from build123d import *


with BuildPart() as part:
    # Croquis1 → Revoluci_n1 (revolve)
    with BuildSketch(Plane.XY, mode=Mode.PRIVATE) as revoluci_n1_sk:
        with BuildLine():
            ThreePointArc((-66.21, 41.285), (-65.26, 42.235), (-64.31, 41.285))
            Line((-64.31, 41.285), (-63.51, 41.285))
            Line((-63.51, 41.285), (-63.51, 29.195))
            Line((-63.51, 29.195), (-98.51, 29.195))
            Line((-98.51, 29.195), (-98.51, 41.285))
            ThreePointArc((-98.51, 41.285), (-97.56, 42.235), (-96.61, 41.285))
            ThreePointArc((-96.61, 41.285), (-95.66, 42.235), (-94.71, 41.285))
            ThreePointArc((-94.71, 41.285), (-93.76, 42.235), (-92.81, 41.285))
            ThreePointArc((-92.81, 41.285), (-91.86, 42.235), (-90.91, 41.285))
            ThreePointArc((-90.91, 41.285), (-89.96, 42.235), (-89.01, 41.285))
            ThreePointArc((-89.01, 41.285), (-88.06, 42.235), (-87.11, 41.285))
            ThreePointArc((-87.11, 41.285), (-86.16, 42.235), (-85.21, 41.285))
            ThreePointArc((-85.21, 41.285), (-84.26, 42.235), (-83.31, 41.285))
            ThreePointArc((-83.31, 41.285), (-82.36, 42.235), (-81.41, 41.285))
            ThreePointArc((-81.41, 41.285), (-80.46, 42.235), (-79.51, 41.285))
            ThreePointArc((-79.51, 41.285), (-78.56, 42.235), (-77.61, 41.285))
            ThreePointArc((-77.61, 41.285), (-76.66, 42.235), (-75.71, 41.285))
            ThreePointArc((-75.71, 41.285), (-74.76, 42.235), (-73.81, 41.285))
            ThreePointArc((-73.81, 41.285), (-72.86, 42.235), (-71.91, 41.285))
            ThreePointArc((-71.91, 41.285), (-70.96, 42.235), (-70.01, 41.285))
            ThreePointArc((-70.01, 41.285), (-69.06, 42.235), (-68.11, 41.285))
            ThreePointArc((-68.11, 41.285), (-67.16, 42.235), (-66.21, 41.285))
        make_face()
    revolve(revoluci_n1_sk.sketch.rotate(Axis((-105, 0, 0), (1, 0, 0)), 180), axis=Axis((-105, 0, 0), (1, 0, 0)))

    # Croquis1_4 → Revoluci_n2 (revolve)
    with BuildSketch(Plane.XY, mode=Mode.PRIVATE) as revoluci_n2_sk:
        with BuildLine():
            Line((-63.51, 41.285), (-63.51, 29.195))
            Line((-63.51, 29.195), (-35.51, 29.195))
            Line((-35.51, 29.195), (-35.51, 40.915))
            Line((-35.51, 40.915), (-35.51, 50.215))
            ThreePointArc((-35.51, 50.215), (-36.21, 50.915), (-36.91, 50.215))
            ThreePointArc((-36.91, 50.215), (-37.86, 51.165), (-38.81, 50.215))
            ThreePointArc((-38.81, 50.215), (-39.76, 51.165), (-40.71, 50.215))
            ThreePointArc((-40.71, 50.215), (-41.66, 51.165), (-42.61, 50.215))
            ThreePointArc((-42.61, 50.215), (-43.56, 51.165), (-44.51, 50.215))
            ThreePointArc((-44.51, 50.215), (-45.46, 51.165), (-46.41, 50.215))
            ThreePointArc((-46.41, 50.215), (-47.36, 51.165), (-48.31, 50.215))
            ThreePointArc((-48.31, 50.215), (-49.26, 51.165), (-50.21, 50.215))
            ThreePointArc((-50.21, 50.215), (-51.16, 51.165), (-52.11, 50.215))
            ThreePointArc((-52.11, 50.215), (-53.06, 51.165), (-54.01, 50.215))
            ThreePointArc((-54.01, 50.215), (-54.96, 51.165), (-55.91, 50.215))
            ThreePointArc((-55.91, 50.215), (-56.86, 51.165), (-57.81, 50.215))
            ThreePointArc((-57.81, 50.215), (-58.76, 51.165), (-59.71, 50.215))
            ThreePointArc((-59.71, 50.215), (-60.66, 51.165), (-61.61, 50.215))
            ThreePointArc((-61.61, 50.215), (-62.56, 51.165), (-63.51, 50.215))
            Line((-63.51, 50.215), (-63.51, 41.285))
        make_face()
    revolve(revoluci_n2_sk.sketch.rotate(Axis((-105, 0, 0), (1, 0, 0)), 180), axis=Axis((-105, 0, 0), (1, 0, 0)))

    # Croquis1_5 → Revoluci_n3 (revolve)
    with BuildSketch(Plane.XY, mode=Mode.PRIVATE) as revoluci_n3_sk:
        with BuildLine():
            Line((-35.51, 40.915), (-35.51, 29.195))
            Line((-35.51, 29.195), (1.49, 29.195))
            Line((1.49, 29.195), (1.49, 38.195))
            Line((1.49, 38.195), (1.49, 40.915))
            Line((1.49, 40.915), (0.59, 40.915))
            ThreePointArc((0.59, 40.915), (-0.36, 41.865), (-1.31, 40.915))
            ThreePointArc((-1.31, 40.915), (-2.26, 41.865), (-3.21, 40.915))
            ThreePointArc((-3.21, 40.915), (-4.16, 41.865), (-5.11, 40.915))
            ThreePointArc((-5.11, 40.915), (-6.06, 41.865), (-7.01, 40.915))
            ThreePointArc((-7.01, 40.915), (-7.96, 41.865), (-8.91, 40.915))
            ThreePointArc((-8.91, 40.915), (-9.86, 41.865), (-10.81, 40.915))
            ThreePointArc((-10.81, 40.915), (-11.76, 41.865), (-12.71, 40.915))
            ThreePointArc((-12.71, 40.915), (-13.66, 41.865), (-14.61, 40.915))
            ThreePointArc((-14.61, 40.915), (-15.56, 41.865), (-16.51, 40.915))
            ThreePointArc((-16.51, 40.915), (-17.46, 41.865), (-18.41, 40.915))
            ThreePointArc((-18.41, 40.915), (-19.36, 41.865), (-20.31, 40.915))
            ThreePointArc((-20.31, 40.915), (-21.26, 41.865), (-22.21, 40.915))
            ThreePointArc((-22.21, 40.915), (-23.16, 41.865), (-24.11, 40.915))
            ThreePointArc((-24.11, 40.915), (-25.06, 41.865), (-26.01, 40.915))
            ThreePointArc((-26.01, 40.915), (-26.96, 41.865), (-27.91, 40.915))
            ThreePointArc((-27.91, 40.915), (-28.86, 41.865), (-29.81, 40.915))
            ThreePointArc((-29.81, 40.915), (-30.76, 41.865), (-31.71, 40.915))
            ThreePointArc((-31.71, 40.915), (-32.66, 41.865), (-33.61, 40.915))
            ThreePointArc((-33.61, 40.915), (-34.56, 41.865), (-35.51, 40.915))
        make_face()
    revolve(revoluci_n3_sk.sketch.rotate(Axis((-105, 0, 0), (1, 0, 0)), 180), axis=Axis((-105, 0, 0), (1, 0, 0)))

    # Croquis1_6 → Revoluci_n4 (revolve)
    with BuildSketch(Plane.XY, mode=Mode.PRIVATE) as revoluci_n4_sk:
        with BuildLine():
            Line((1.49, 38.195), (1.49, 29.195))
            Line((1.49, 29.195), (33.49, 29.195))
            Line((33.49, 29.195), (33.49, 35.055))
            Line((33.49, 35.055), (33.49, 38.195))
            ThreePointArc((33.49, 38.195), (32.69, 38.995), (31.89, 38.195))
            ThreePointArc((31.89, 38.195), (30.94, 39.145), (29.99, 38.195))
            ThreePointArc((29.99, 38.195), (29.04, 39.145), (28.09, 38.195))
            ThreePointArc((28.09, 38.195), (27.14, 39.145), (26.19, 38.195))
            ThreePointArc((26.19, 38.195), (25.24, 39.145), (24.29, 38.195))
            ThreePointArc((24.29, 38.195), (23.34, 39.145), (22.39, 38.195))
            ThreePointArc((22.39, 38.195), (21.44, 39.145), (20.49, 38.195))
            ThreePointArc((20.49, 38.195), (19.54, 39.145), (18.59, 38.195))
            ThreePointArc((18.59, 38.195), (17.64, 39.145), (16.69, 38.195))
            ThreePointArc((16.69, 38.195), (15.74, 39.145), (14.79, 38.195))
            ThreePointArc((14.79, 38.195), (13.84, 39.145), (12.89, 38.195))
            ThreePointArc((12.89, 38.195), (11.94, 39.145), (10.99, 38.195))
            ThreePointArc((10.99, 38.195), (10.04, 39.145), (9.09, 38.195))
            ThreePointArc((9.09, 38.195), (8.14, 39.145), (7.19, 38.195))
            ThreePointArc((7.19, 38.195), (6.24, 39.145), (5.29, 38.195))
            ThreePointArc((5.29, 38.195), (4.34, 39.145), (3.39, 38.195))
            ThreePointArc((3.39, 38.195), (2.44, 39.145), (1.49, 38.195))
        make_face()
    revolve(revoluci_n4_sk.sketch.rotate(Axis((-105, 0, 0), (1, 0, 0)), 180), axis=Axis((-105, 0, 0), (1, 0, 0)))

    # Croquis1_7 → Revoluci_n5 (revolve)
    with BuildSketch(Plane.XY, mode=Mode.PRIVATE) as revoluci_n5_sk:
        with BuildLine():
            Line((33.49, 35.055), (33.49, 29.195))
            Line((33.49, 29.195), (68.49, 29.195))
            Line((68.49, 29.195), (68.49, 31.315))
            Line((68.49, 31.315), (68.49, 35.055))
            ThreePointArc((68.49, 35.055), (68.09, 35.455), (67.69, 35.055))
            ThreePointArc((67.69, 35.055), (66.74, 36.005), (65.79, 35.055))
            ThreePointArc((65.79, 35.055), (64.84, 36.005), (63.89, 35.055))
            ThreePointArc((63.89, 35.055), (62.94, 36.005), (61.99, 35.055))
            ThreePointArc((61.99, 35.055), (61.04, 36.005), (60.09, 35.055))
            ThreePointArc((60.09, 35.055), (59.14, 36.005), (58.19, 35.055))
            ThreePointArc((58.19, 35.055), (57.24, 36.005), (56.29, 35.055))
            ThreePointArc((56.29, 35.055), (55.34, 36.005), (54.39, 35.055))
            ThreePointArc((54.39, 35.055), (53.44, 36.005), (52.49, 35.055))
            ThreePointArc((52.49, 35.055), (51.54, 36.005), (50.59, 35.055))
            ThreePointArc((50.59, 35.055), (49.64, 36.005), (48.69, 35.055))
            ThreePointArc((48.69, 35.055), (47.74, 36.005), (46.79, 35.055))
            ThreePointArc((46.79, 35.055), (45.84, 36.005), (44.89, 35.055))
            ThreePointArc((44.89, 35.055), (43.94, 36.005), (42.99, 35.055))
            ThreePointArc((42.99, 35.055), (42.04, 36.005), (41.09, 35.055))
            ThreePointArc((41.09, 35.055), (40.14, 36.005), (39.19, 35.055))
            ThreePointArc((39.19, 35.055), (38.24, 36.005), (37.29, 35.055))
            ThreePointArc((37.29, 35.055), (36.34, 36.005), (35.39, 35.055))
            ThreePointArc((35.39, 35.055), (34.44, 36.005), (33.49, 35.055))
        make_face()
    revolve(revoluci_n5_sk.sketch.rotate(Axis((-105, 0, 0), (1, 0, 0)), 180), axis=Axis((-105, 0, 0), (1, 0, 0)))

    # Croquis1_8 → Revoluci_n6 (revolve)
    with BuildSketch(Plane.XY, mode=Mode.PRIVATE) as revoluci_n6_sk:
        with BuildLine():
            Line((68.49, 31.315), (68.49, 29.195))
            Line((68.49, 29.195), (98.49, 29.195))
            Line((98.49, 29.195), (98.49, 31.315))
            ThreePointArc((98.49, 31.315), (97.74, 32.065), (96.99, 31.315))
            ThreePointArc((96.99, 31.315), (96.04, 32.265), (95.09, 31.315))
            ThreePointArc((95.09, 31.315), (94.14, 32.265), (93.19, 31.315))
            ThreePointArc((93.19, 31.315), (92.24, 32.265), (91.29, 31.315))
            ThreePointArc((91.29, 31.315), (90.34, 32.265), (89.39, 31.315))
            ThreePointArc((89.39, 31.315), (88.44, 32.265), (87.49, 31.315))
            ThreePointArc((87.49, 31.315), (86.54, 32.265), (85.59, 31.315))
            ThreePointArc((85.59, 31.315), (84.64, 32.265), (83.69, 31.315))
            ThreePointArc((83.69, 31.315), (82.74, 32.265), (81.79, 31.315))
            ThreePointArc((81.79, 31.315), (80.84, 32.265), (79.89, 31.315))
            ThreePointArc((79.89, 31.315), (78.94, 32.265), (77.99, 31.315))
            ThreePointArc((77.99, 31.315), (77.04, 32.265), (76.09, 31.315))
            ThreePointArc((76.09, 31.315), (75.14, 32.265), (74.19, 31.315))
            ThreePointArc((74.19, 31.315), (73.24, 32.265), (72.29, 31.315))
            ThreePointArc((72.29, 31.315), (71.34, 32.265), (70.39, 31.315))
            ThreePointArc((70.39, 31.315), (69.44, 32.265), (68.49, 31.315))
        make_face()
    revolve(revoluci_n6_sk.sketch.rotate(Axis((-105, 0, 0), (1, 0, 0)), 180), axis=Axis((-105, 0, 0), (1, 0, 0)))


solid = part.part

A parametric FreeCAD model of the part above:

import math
import FreeCAD as App
import Part
import Sketcher

doc = App.newDocument("Part")
body = doc.addObject("PartDesign::Body", "Body")

# Sketch on XY plane
sketch1 = body.newObject("Sketcher::SketchObject", "Sketch")
sketch1.AttachmentSupport = (doc.getObject("XY_Plane"), [""])
sketch1.MapMode = "FlatFace"
sketch1.addGeometry([
    Part.ArcOfCircle(Part.Circle(App.Vector(-65.26, 41.285, 0), App.Vector(0, 0, 1), 0.95), math.radians(0), math.radians(180)),  # 0
    Part.ArcOfCircle(Part.Circle(App.Vector(-67.16, 41.285, 0), App.Vector(0, 0, 1), 0.95), math.radians(0), math.radians(180)),  # 1
    Part.ArcOfCircle(Part.Circle(App.Vector(-69.06, 41.285, 0), App.Vector(0, 0, 1), 0.95), math.radians(0), math.radians(180)),  # 2
    Part.ArcOfCircle(Part.Circle(App.Vector(-70.96, 41.285, 0), App.Vector(0, 0, 1), 0.95), math.radians(0), math.radians(180)),  # 3
    Part.ArcOfCircle(Part.Circle(App.Vector(-72.86, 41.285, 0), App.Vector(0, 0, 1), 0.95), math.radians(0), math.radians(180)),  # 4
    Part.ArcOfCircle(Part.Circle(App.Vector(-74.76, 41.285, 0), App.Vector(0, 0, 1), 0.95), math.radians(0), math.radians(180)),  # 5
    Part.ArcOfCircle(Part.Circle(App.Vector(-76.66, 41.285, 0), App.Vector(0, 0, 1), 0.95), math.radians(0), math.radians(180)),  # 6
    Part.ArcOfCircle(Part.Circle(App.Vector(-78.56, 41.285, 0), App.Vector(0, 0, 1), 0.95), math.radians(0), math.radians(180)),  # 7
    Part.ArcOfCircle(Part.Circle(App.Vector(-80.46, 41.285, 0), App.Vector(0, 0, 1), 0.95), math.radians(0), math.radians(180)),  # 8
    Part.ArcOfCircle(Part.Circle(App.Vector(-82.36, 41.285, 0), App.Vector(0, 0, 1), 0.95), math.radians(0), math.radians(180)),  # 9
    Part.ArcOfCircle(Part.Circle(App.Vector(-84.26, 41.285, 0), App.Vector(0, 0, 1), 0.95), math.radians(0), math.radians(180)),  # 10
    Part.ArcOfCircle(Part.Circle(App.Vector(-86.16, 41.285, 0), App.Vector(0, 0, 1), 0.95), math.radians(0), math.radians(180)),  # 11
    Part.ArcOfCircle(Part.Circle(App.Vector(-88.06, 41.285, 0), App.Vector(0, 0, 1), 0.95), math.radians(0), math.radians(180)),  # 12
    Part.ArcOfCircle(Part.Circle(App.Vector(-89.96, 41.285, 0), App.Vector(0, 0, 1), 0.95), math.radians(0), math.radians(180)),  # 13
    Part.ArcOfCircle(Part.Circle(App.Vector(-91.86, 41.285, 0), App.Vector(0, 0, 1), 0.95), math.radians(0), math.radians(180)),  # 14
    Part.ArcOfCircle(Part.Circle(App.Vector(-93.76, 41.285, 0), App.Vector(0, 0, 1), 0.95), math.radians(0), math.radians(180)),  # 15
    Part.ArcOfCircle(Part.Circle(App.Vector(-95.66, 41.285, 0), App.Vector(0, 0, 1), 0.95), math.radians(0), math.radians(180)),  # 16
    Part.ArcOfCircle(Part.Circle(App.Vector(-97.56, 41.285, 0), App.Vector(0, 0, 1), 0.95), math.radians(0), math.radians(180)),  # 17
    Part.LineSegment(App.Vector(-98.51, 41.285, 0), App.Vector(-98.51, 29.195, 0)),  # 18
    Part.LineSegment(App.Vector(-98.51, 29.195, 0), App.Vector(-63.51, 29.195, 0)),  # 19
    Part.LineSegment(App.Vector(-63.51, 29.195, 0), App.Vector(-63.51, 41.285, 0)),  # 20
    Part.LineSegment(App.Vector(-63.51, 41.285, 0), App.Vector(-64.31, 41.285, 0)),  # 21
], False)
sketch1.addConstraint([
    Sketcher.Constraint("Tangent", 0, 2, 1, 1),
    Sketcher.Constraint("Tangent", 1, 2, 2, 1),
    Sketcher.Constraint("Tangent", 2, 2, 3, 1),
    Sketcher.Constraint("Tangent", 3, 2, 4, 1),
    Sketcher.Constraint("Tangent", 4, 2, 5, 1),
    Sketcher.Constraint("Tangent", 5, 2, 6, 1),
    Sketcher.Constraint("Tangent", 6, 2, 7, 1),
    Sketcher.Constraint("Tangent", 7, 2, 8, 1),
    Sketcher.Constraint("Tangent", 8, 2, 9, 1),
    Sketcher.Constraint("Tangent", 9, 2, 10, 1),
    Sketcher.Constraint("Tangent", 10, 2, 11, 1),
    Sketcher.Constraint("Tangent", 11, 2, 12, 1),
    Sketcher.Constraint("Tangent", 12, 2, 13, 1),
    Sketcher.Constraint("Tangent", 13, 2, 14, 1),
    Sketcher.Constraint("Tangent", 14, 2, 15, 1),
    Sketcher.Constraint("Tangent", 15, 2, 16, 1),
    Sketcher.Constraint("Tangent", 16, 2, 17, 1),
    Sketcher.Constraint("Tangent", 17, 2, 18, 1),
    Sketcher.Constraint("Coincident", 18, 2, 19, 1),
    Sketcher.Constraint("Coincident", 19, 2, 20, 1),
    Sketcher.Constraint("Coincident", 20, 2, 21, 1),
    Sketcher.Constraint("Coincident", 21, 2, 0, 1),
    Sketcher.Constraint("Vertical", 18),
    Sketcher.Constraint("Horizontal", 19),
    Sketcher.Constraint("Vertical", 20),
    Sketcher.Constraint("Horizontal", 21),
    Sketcher.Constraint("Equal", 0, 1),
    Sketcher.Constraint("Equal", 1, 2),
    Sketcher.Constraint("Equal", 2, 3),
    Sketcher.Constraint("Equal", 3, 4),
    Sketcher.Constraint("Equal", 4, 5),
    Sketcher.Constraint("Equal", 5, 6),
    Sketcher.Constraint("Equal", 6, 7),
    Sketcher.Constraint("Equal", 7, 8),
    Sketcher.Constraint("Equal", 8, 9),
    Sketcher.Constraint("Equal", 9, 10),
    Sketcher.Constraint("Equal", 10, 11),
    Sketcher.Constraint("Equal", 11, 12),
    Sketcher.Constraint("Equal", 12, 13),
    Sketcher.Constraint("Equal", 13, 14),
    Sketcher.Constraint("Equal", 14, 15),
    Sketcher.Constraint("Equal", 15, 16),
    Sketcher.Constraint("Equal", 16, 17),
    Sketcher.Constraint("Horizontal", 0, 3, 1, 3),
    Sketcher.Constraint("Horizontal", 1, 3, 2, 3),
    Sketcher.Constraint("Horizontal", 2, 3, 3, 3),
    Sketcher.Constraint("Horizontal", 3, 3, 4, 3),
    Sketcher.Constraint("Horizontal", 4, 3, 5, 3),
    Sketcher.Constraint("Horizontal", 5, 3, 6, 3),
    Sketcher.Constraint("Horizontal", 6, 3, 7, 3),
    Sketcher.Constraint("Horizontal", 7, 3, 8, 3),
    Sketcher.Constraint("Horizontal", 8, 3, 9, 3),
    Sketcher.Constraint("Horizontal", 9, 3, 10, 3),
    Sketcher.Constraint("Horizontal", 10, 3, 11, 3),
    Sketcher.Constraint("Horizontal", 11, 3, 12, 3),
    Sketcher.Constraint("Horizontal", 12, 3, 13, 3),
    Sketcher.Constraint("Horizontal", 13, 3, 14, 3),
    Sketcher.Constraint("Horizontal", 14, 3, 15, 3),
    Sketcher.Constraint("Horizontal", 15, 3, 16, 3),
    Sketcher.Constraint("Horizontal", 16, 3, 17, 3),
    Sketcher.Constraint("Horizontal", 17, 2, 20, 2),
    Sketcher.Constraint("DistanceX", 19, 1, 19, 2, 35.0),
    Sketcher.Constraint("Radius", 0, 0.95),
    Sketcher.Constraint("DistanceY", 18, 2, 18, 1, 12.09),
    Sketcher.Constraint("DistanceX", 0, 3, -1, 1, 65.26),
    Sketcher.Constraint("DistanceY", -1, 1, 0, 3, 41.285),
])
revolution = body.newObject("PartDesign::Revolution", "Revolution")
revolution.Profile = sketch1
revolution.ReferenceAxis = (sketch1, ["H_Axis"])
revolution.Angle = 360

# Sketch on XY plane
sketch2 = body.newObject("Sketcher::SketchObject", "Sketch001")
sketch2.AttachmentSupport = (doc.getObject("XY_Plane"), [""])
sketch2.MapMode = "FlatFace"
sketch2.addGeometry([
    Part.LineSegment(App.Vector(-63.51, 29.195, 0), App.Vector(-35.51, 29.195, 0)),  # 0
    Part.LineSegment(App.Vector(-35.51, 29.195, 0), App.Vector(-35.51, 50.215, 0)),  # 1
    Part.ArcOfCircle(Part.Circle(App.Vector(-36.21, 50.215, 0), App.Vector(0, 0, 1), 0.7), math.radians(0), math.radians(180)),  # 2
    Part.ArcOfCircle(Part.Circle(App.Vector(-37.86, 50.215, 0), App.Vector(0, 0, 1), 0.95), math.radians(0), math.radians(180)),  # 3
    Part.ArcOfCircle(Part.Circle(App.Vector(-39.76, 50.215, 0), App.Vector(0, 0, 1), 0.95), math.radians(0), math.radians(180)),  # 4
    Part.ArcOfCircle(Part.Circle(App.Vector(-41.66, 50.215, 0), App.Vector(0, 0, 1), 0.95), math.radians(0), math.radians(180)),  # 5
    Part.ArcOfCircle(Part.Circle(App.Vector(-43.56, 50.215, 0), App.Vector(0, 0, 1), 0.95), math.radians(0), math.radians(180)),  # 6
    Part.ArcOfCircle(Part.Circle(App.Vector(-45.46, 50.215, 0), App.Vector(0, 0, 1), 0.95), math.radians(0), math.radians(180)),  # 7
    Part.ArcOfCircle(Part.Circle(App.Vector(-47.36, 50.215, 0), App.Vector(0, 0, 1), 0.95), math.radians(0), math.radians(180)),  # 8
    Part.ArcOfCircle(Part.Circle(App.Vector(-49.26, 50.215, 0), App.Vector(0, 0, 1), 0.95), math.radians(0), math.radians(180)),  # 9
    Part.ArcOfCircle(Part.Circle(App.Vector(-51.16, 50.215, 0), App.Vector(0, 0, 1), 0.95), math.radians(0), math.radians(180)),  # 10
    Part.ArcOfCircle(Part.Circle(App.Vector(-53.06, 50.215, 0), App.Vector(0, 0, 1), 0.95), math.radians(0), math.radians(180)),  # 11
    Part.ArcOfCircle(Part.Circle(App.Vector(-54.96, 50.215, 0), App.Vector(0, 0, 1), 0.95), math.radians(0), math.radians(180)),  # 12
    Part.ArcOfCircle(Part.Circle(App.Vector(-56.86, 50.215, 0), App.Vector(0, 0, 1), 0.95), math.radians(0), math.radians(180)),  # 13
    Part.ArcOfCircle(Part.Circle(App.Vector(-58.76, 50.215, 0), App.Vector(0, 0, 1), 0.95), math.radians(0), math.radians(180)),  # 14
    Part.ArcOfCircle(Part.Circle(App.Vector(-60.66, 50.215, 0), App.Vector(0, 0, 1), 0.95), math.radians(0), math.radians(180)),  # 15
    Part.ArcOfCircle(Part.Circle(App.Vector(-62.56, 50.215, 0), App.Vector(0, 0, 1), 0.95), math.radians(0), math.radians(180)),  # 16
    Part.LineSegment(App.Vector(-63.51, 50.215, 0), App.Vector(-63.51, 29.195, 0)),  # 17
], False)
sketch2.addConstraint([
    Sketcher.Constraint("Coincident", 0, 2, 1, 1),
    Sketcher.Constraint("Tangent", 1, 2, 2, 1),
    Sketcher.Constraint("Tangent", 2, 2, 3, 1),
    Sketcher.Constraint("Tangent", 3, 2, 4, 1),
    Sketcher.Constraint("Tangent", 4, 2, 5, 1),
    Sketcher.Constraint("Tangent", 5, 2, 6, 1),
    Sketcher.Constraint("Tangent", 6, 2, 7, 1),
    Sketcher.Constraint("Tangent", 7, 2, 8, 1),
    Sketcher.Constraint("Tangent", 8, 2, 9, 1),
    Sketcher.Constraint("Tangent", 9, 2, 10, 1),
    Sketcher.Constraint("Tangent", 10, 2, 11, 1),
    Sketcher.Constraint("Tangent", 11, 2, 12, 1),
    Sketcher.Constraint("Tangent", 12, 2, 13, 1),
    Sketcher.Constraint("Tangent", 13, 2, 14, 1),
    Sketcher.Constraint("Tangent", 14, 2, 15, 1),
    Sketcher.Constraint("Tangent", 15, 2, 16, 1),
    Sketcher.Constraint("Tangent", 16, 2, 17, 1),
    Sketcher.Constraint("Coincident", 17, 2, 0, 1),
    Sketcher.Constraint("Horizontal", 0),
    Sketcher.Constraint("Vertical", 1),
    Sketcher.Constraint("Vertical", 17),
    Sketcher.Constraint("Equal", 3, 4),
    Sketcher.Constraint("Equal", 4, 5),
    Sketcher.Constraint("Equal", 5, 6),
    Sketcher.Constraint("Equal", 6, 7),
    Sketcher.Constraint("Equal", 7, 8),
    Sketcher.Constraint("Equal", 8, 9),
    Sketcher.Constraint("Equal", 9, 10),
    Sketcher.Constraint("Equal", 10, 11),
    Sketcher.Constraint("Equal", 11, 12),
    Sketcher.Constraint("Equal", 12, 13),
    Sketcher.Constraint("Equal", 13, 14),
    Sketcher.Constraint("Equal", 14, 15),
    Sketcher.Constraint("Equal", 15, 16),
    Sketcher.Constraint("Horizontal", 2, 3, 3, 3),
    Sketcher.Constraint("Horizontal", 3, 3, 4, 3),
    Sketcher.Constraint("Horizontal", 4, 3, 5, 3),
    Sketcher.Constraint("Horizontal", 5, 3, 6, 3),
    Sketcher.Constraint("Horizontal", 6, 3, 7, 3),
    Sketcher.Constraint("Horizontal", 7, 3, 8, 3),
    Sketcher.Constraint("Horizontal", 8, 3, 9, 3),
    Sketcher.Constraint("Horizontal", 9, 3, 10, 3),
    Sketcher.Constraint("Horizontal", 10, 3, 11, 3),
    Sketcher.Constraint("Horizontal", 11, 3, 12, 3),
    Sketcher.Constraint("Horizontal", 12, 3, 13, 3),
    Sketcher.Constraint("Horizontal", 13, 3, 14, 3),
    Sketcher.Constraint("Horizontal", 14, 3, 15, 3),
    Sketcher.Constraint("Horizontal", 15, 3, 16, 3),
    Sketcher.Constraint("Radius", 2, 0.7),
    Sketcher.Constraint("DistanceX", 0, 1, 0, 2, 28.0),
    Sketcher.Constraint("DistanceY", 1, 1, 1, 2, 21.02),
    Sketcher.Constraint("DistanceX", 2, 3, -1, 1, 36.21),
    Sketcher.Constraint("DistanceY", -1, 1, 2, 3, 50.215),
])
revolution2 = body.newObject("PartDesign::Revolution", "Revolution001")
revolution2.Profile = sketch2
revolution2.ReferenceAxis = (sketch2, ["H_Axis"])
revolution2.Angle = 360

# Sketch on XY plane
sketch3 = body.newObject("Sketcher::SketchObject", "Sketch002")
sketch3.AttachmentSupport = (doc.getObject("XY_Plane"), [""])
sketch3.MapMode = "FlatFace"
sketch3.addGeometry([
    Part.LineSegment(App.Vector(-35.51, 40.915, 0), App.Vector(-35.51, 29.195, 0)),  # 0
    Part.LineSegment(App.Vector(-35.51, 29.195, 0), App.Vector(1.49, 29.195, 0)),  # 1
    Part.LineSegment(App.Vector(1.49, 29.195, 0), App.Vector(1.49, 40.915, 0)),  # 2
    Part.LineSegment(App.Vector(1.49, 40.915, 0), App.Vector(0.59, 40.915, 0)),  # 3
    Part.ArcOfCircle(Part.Circle(App.Vector(-0.36, 40.915, 0), App.Vector(0, 0, 1), 0.95), math.radians(0), math.radians(180)),  # 4
    Part.ArcOfCircle(Part.Circle(App.Vector(-2.26, 40.915, 0), App.Vector(0, 0, 1), 0.95), math.radians(0), math.radians(180)),  # 5
    Part.ArcOfCircle(Part.Circle(App.Vector(-4.16, 40.915, 0), App.Vector(0, 0, 1), 0.95), math.radians(0), math.radians(180)),  # 6
    Part.ArcOfCircle(Part.Circle(App.Vector(-6.06, 40.915, 0), App.Vector(0, 0, 1), 0.95), math.radians(0), math.radians(180)),  # 7
    Part.ArcOfCircle(Part.Circle(App.Vector(-7.96, 40.915, 0), App.Vector(0, 0, 1), 0.95), math.radians(0), math.radians(180)),  # 8
    Part.ArcOfCircle(Part.Circle(App.Vector(-9.86, 40.915, 0), App.Vector(0, 0, 1), 0.95), math.radians(0), math.radians(180)),  # 9
    Part.ArcOfCircle(Part.Circle(App.Vector(-11.76, 40.915, 0), App.Vector(0, 0, 1), 0.95), math.radians(0), math.radians(180)),  # 10
    Part.ArcOfCircle(Part.Circle(App.Vector(-13.66, 40.915, 0), App.Vector(0, 0, 1), 0.95), math.radians(0), math.radians(180)),  # 11
    Part.ArcOfCircle(Part.Circle(App.Vector(-15.56, 40.915, 0), App.Vector(0, 0, 1), 0.95), math.radians(0), math.radians(180)),  # 12
    Part.ArcOfCircle(Part.Circle(App.Vector(-17.46, 40.915, 0), App.Vector(0, 0, 1), 0.95), math.radians(0), math.radians(180)),  # 13
    Part.ArcOfCircle(Part.Circle(App.Vector(-19.36, 40.915, 0), App.Vector(0, 0, 1), 0.95), math.radians(0), math.radians(180)),  # 14
    Part.ArcOfCircle(Part.Circle(App.Vector(-21.26, 40.915, 0), App.Vector(0, 0, 1), 0.95), math.radians(0), math.radians(180)),  # 15
    Part.ArcOfCircle(Part.Circle(App.Vector(-23.16, 40.915, 0), App.Vector(0, 0, 1), 0.95), math.radians(0), math.radians(180)),  # 16
    Part.ArcOfCircle(Part.Circle(App.Vector(-25.06, 40.915, 0), App.Vector(0, 0, 1), 0.95), math.radians(0), math.radians(180)),  # 17
    Part.ArcOfCircle(Part.Circle(App.Vector(-26.96, 40.915, 0), App.Vector(0, 0, 1), 0.95), math.radians(0), math.radians(180)),  # 18
    Part.ArcOfCircle(Part.Circle(App.Vector(-28.86, 40.915, 0), App.Vector(0, 0, 1), 0.95), math.radians(0), math.radians(180)),  # 19
    Part.ArcOfCircle(Part.Circle(App.Vector(-30.76, 40.915, 0), App.Vector(0, 0, 1), 0.95), math.radians(0), math.radians(180)),  # 20
    Part.ArcOfCircle(Part.Circle(App.Vector(-32.66, 40.915, 0), App.Vector(0, 0, 1), 0.95), math.radians(0), math.radians(180)),  # 21
    Part.ArcOfCircle(Part.Circle(App.Vector(-34.56, 40.915, 0), App.Vector(0, 0, 1), 0.95), math.radians(0), math.radians(180)),  # 22
], False)
sketch3.addConstraint([
    Sketcher.Constraint("Coincident", 0, 2, 1, 1),
    Sketcher.Constraint("Coincident", 1, 2, 2, 1),
    Sketcher.Constraint("Coincident", 2, 2, 3, 1),
    Sketcher.Constraint("Coincident", 3, 2, 4, 1),
    Sketcher.Constraint("Tangent", 4, 2, 5, 1),
    Sketcher.Constraint("Tangent", 5, 2, 6, 1),
    Sketcher.Constraint("Tangent", 6, 2, 7, 1),
    Sketcher.Constraint("Tangent", 7, 2, 8, 1),
    Sketcher.Constraint("Tangent", 8, 2, 9, 1),
    Sketcher.Constraint("Tangent", 9, 2, 10, 1),
    Sketcher.Constraint("Tangent", 10, 2, 11, 1),
    Sketcher.Constraint("Tangent", 11, 2, 12, 1),
    Sketcher.Constraint("Tangent", 12, 2, 13, 1),
    Sketcher.Constraint("Tangent", 13, 2, 14, 1),
    Sketcher.Constraint("Tangent", 14, 2, 15, 1),
    Sketcher.Constraint("Tangent", 15, 2, 16, 1),
    Sketcher.Constraint("Tangent", 16, 2, 17, 1),
    Sketcher.Constraint("Tangent", 17, 2, 18, 1),
    Sketcher.Constraint("Tangent", 18, 2, 19, 1),
    Sketcher.Constraint("Tangent", 19, 2, 20, 1),
    Sketcher.Constraint("Tangent", 20, 2, 21, 1),
    Sketcher.Constraint("Tangent", 21, 2, 22, 1),
    Sketcher.Constraint("Tangent", 22, 2, 0, 1),
    Sketcher.Constraint("Vertical", 0),
    Sketcher.Constraint("Horizontal", 1),
    Sketcher.Constraint("Vertical", 2),
    Sketcher.Constraint("Horizontal", 3),
    Sketcher.Constraint("Equal", 4, 5),
    Sketcher.Constraint("Equal", 5, 6),
    Sketcher.Constraint("Equal", 6, 7),
    Sketcher.Constraint("Equal", 7, 8),
    Sketcher.Constraint("Equal", 8, 9),
    Sketcher.Constraint("Equal", 9, 10),
    Sketcher.Constraint("Equal", 10, 11),
    Sketcher.Constraint("Equal", 11, 12),
    Sketcher.Constraint("Equal", 12, 13),
    Sketcher.Constraint("Equal", 13, 14),
    Sketcher.Constraint("Equal", 14, 15),
    Sketcher.Constraint("Equal", 15, 16),
    Sketcher.Constraint("Equal", 16, 17),
    Sketcher.Constraint("Equal", 17, 18),
    Sketcher.Constraint("Equal", 18, 19),
    Sketcher.Constraint("Equal", 19, 20),
    Sketcher.Constraint("Equal", 20, 21),
    Sketcher.Constraint("Equal", 21, 22),
    Sketcher.Constraint("Horizontal", 4, 3, 5, 3),
    Sketcher.Constraint("Horizontal", 5, 3, 6, 3),
    Sketcher.Constraint("Horizontal", 6, 3, 7, 3),
    Sketcher.Constraint("Horizontal", 7, 3, 8, 3),
    Sketcher.Constraint("Horizontal", 8, 3, 9, 3),
    Sketcher.Constraint("Horizontal", 9, 3, 10, 3),
    Sketcher.Constraint("Horizontal", 10, 3, 11, 3),
    Sketcher.Constraint("Horizontal", 11, 3, 12, 3),
    Sketcher.Constraint("Horizontal", 12, 3, 13, 3),
    Sketcher.Constraint("Horizontal", 13, 3, 14, 3),
    Sketcher.Constraint("Horizontal", 14, 3, 15, 3),
    Sketcher.Constraint("Horizontal", 15, 3, 16, 3),
    Sketcher.Constraint("Horizontal", 16, 3, 17, 3),
    Sketcher.Constraint("Horizontal", 17, 3, 18, 3),
    Sketcher.Constraint("Horizontal", 18, 3, 19, 3),
    Sketcher.Constraint("Horizontal", 19, 3, 20, 3),
    Sketcher.Constraint("Horizontal", 20, 3, 21, 3),
    Sketcher.Constraint("Horizontal", 21, 3, 22, 3),
    Sketcher.Constraint("Horizontal", 22, 3, 2, 2),
    Sketcher.Constraint("DistanceX", 1, 1, 1, 2, 37.0),
    Sketcher.Constraint("Radius", 4, 0.95),
    Sketcher.Constraint("DistanceY", 0, 2, 0, 1, 11.72),
    Sketcher.Constraint("DistanceX", 4, 3, -1, 1, 0.36),
    Sketcher.Constraint("DistanceY", -1, 1, 4, 3, 40.915),
])
revolution3 = body.newObject("PartDesign::Revolution", "Revolution002")
revolution3.Profile = sketch3
revolution3.ReferenceAxis = (sketch3, ["H_Axis"])
revolution3.Angle = 360

# Sketch on XY plane
sketch4 = body.newObject("Sketcher::SketchObject", "Sketch003")
sketch4.AttachmentSupport = (doc.getObject("XY_Plane"), [""])
sketch4.MapMode = "FlatFace"
sketch4.addGeometry([
    Part.LineSegment(App.Vector(1.49, 38.195, 0), App.Vector(1.49, 29.195, 0)),  # 0
    Part.LineSegment(App.Vector(1.49, 29.195, 0), App.Vector(33.49, 29.195, 0)),  # 1
    Part.LineSegment(App.Vector(33.49, 29.195, 0), App.Vector(33.49, 38.195, 0)),  # 2
    Part.ArcOfCircle(Part.Circle(App.Vector(32.69, 38.195, 0), App.Vector(0, 0, 1), 0.8), math.radians(0), math.radians(180)),  # 3
    Part.ArcOfCircle(Part.Circle(App.Vector(30.94, 38.195, 0), App.Vector(0, 0, 1), 0.95), math.radians(0), math.radians(180)),  # 4
    Part.ArcOfCircle(Part.Circle(App.Vector(29.04, 38.195, 0), App.Vector(0, 0, 1), 0.95), math.radians(0), math.radians(180)),  # 5
    Part.ArcOfCircle(Part.Circle(App.Vector(27.14, 38.195, 0), App.Vector(0, 0, 1), 0.95), math.radians(0), math.radians(180)),  # 6
    Part.ArcOfCircle(Part.Circle(App.Vector(25.24, 38.195, 0), App.Vector(0, 0, 1), 0.95), math.radians(0), math.radians(180)),  # 7
    Part.ArcOfCircle(Part.Circle(App.Vector(23.34, 38.195, 0), App.Vector(0, 0, 1), 0.95), math.radians(0), math.radians(180)),  # 8
    Part.ArcOfCircle(Part.Circle(App.Vector(21.44, 38.195, 0), App.Vector(0, 0, 1), 0.95), math.radians(0), math.radians(180)),  # 9
    Part.ArcOfCircle(Part.Circle(App.Vector(19.54, 38.195, 0), App.Vector(0, 0, 1), 0.95), math.radians(0), math.radians(180)),  # 10
    Part.ArcOfCircle(Part.Circle(App.Vector(17.64, 38.195, 0), App.Vector(0, 0, 1), 0.95), math.radians(0), math.radians(180)),  # 11
    Part.ArcOfCircle(Part.Circle(App.Vector(15.74, 38.195, 0), App.Vector(0, 0, 1), 0.95), math.radians(0), math.radians(180)),  # 12
    Part.ArcOfCircle(Part.Circle(App.Vector(13.84, 38.195, 0), App.Vector(0, 0, 1), 0.95), math.radians(0), math.radians(180)),  # 13
    Part.ArcOfCircle(Part.Circle(App.Vector(11.94, 38.195, 0), App.Vector(0, 0, 1), 0.95), math.radians(0), math.radians(180)),  # 14
    Part.ArcOfCircle(Part.Circle(App.Vector(10.04, 38.195, 0), App.Vector(0, 0, 1), 0.95), math.radians(0), math.radians(180)),  # 15
    Part.ArcOfCircle(Part.Circle(App.Vector(8.14, 38.195, 0), App.Vector(0, 0, 1), 0.95), math.radians(0), math.radians(180)),  # 16
    Part.ArcOfCircle(Part.Circle(App.Vector(6.24, 38.195, 0), App.Vector(0, 0, 1), 0.95), math.radians(0), math.radians(180)),  # 17
    Part.ArcOfCircle(Part.Circle(App.Vector(4.34, 38.195, 0), App.Vector(0, 0, 1), 0.95), math.radians(0), math.radians(180)),  # 18
    Part.ArcOfCircle(Part.Circle(App.Vector(2.44, 38.195, 0), App.Vector(0, 0, 1), 0.95), math.radians(0), math.radians(180)),  # 19
], False)
sketch4.addConstraint([
    Sketcher.Constraint("Coincident", 0, 2, 1, 1),
    Sketcher.Constraint("Coincident", 1, 2, 2, 1),
    Sketcher.Constraint("Tangent", 2, 2, 3, 1),
    Sketcher.Constraint("Tangent", 3, 2, 4, 1),
    Sketcher.Constraint("Tangent", 4, 2, 5, 1),
    Sketcher.Constraint("Tangent", 5, 2, 6, 1),
    Sketcher.Constraint("Tangent", 6, 2, 7, 1),
    Sketcher.Constraint("Tangent", 7, 2, 8, 1),
    Sketcher.Constraint("Tangent", 8, 2, 9, 1),
    Sketcher.Constraint("Tangent", 9, 2, 10, 1),
    Sketcher.Constraint("Tangent", 10, 2, 11, 1),
    Sketcher.Constraint("Tangent", 11, 2, 12, 1),
    Sketcher.Constraint("Tangent", 12, 2, 13, 1),
    Sketcher.Constraint("Tangent", 13, 2, 14, 1),
    Sketcher.Constraint("Tangent", 14, 2, 15, 1),
    Sketcher.Constraint("Tangent", 15, 2, 16, 1),
    Sketcher.Constraint("Tangent", 16, 2, 17, 1),
    Sketcher.Constraint("Tangent", 17, 2, 18, 1),
    Sketcher.Constraint("Tangent", 18, 2, 19, 1),
    Sketcher.Constraint("Tangent", 19, 2, 0, 1),
    Sketcher.Constraint("Vertical", 0),
    Sketcher.Constraint("Horizontal", 1),
    Sketcher.Constraint("Vertical", 2),
    Sketcher.Constraint("Equal", 4, 5),
    Sketcher.Constraint("Equal", 5, 6),
    Sketcher.Constraint("Equal", 6, 7),
    Sketcher.Constraint("Equal", 7, 8),
    Sketcher.Constraint("Equal", 8, 9),
    Sketcher.Constraint("Equal", 9, 10),
    Sketcher.Constraint("Equal", 10, 11),
    Sketcher.Constraint("Equal", 11, 12),
    Sketcher.Constraint("Equal", 12, 13),
    Sketcher.Constraint("Equal", 13, 14),
    Sketcher.Constraint("Equal", 14, 15),
    Sketcher.Constraint("Equal", 15, 16),
    Sketcher.Constraint("Equal", 16, 17),
    Sketcher.Constraint("Equal", 17, 18),
    Sketcher.Constraint("Equal", 18, 19),
    Sketcher.Constraint("Horizontal", 3, 3, 4, 3),
    Sketcher.Constraint("Horizontal", 4, 3, 5, 3),
    Sketcher.Constraint("Horizontal", 5, 3, 6, 3),
    Sketcher.Constraint("Horizontal", 6, 3, 7, 3),
    Sketcher.Constraint("Horizontal", 7, 3, 8, 3),
    Sketcher.Constraint("Horizontal", 8, 3, 9, 3),
    Sketcher.Constraint("Horizontal", 9, 3, 10, 3),
    Sketcher.Constraint("Horizontal", 10, 3, 11, 3),
    Sketcher.Constraint("Horizontal", 11, 3, 12, 3),
    Sketcher.Constraint("Horizontal", 12, 3, 13, 3),
    Sketcher.Constraint("Horizontal", 13, 3, 14, 3),
    Sketcher.Constraint("Horizontal", 14, 3, 15, 3),
    Sketcher.Constraint("Horizontal", 15, 3, 16, 3),
    Sketcher.Constraint("Horizontal", 16, 3, 17, 3),
    Sketcher.Constraint("Horizontal", 17, 3, 18, 3),
    Sketcher.Constraint("Horizontal", 18, 3, 19, 3),
    Sketcher.Constraint("Radius", 3, 0.8),
    Sketcher.Constraint("DistanceX", 1, 1, 1, 2, 32.0),
    Sketcher.Constraint("DistanceY", 0, 2, 0, 1, 9.0),
    Sketcher.Constraint("DistanceX", -1, 1, 3, 3, 32.69),
    Sketcher.Constraint("DistanceY", -1, 1, 3, 3, 38.195),
])
revolution4 = body.newObject("PartDesign::Revolution", "Revolution003")
revolution4.Profile = sketch4
revolution4.ReferenceAxis = (sketch4, ["H_Axis"])
revolution4.Angle = 360

# Sketch on XY plane
sketch5 = body.newObject("Sketcher::SketchObject", "Sketch004")
sketch5.AttachmentSupport = (doc.getObject("XY_Plane"), [""])
sketch5.MapMode = "FlatFace"
sketch5.addGeometry([
    Part.LineSegment(App.Vector(33.49, 35.055, 0), App.Vector(33.49, 29.195, 0)),  # 0
    Part.LineSegment(App.Vector(33.49, 29.195, 0), App.Vector(68.49, 29.195, 0)),  # 1
    Part.LineSegment(App.Vector(68.49, 29.195, 0), App.Vector(68.49, 35.055, 0)),  # 2
    Part.ArcOfCircle(Part.Circle(App.Vector(68.09, 35.055, 0), App.Vector(0, 0, 1), 0.4), math.radians(0), math.radians(180)),  # 3
    Part.ArcOfCircle(Part.Circle(App.Vector(66.74, 35.055, 0), App.Vector(0, 0, 1), 0.95), math.radians(0), math.radians(180)),  # 4
    Part.ArcOfCircle(Part.Circle(App.Vector(64.84, 35.055, 0), App.Vector(0, 0, 1), 0.95), math.radians(0), math.radians(180)),  # 5
    Part.ArcOfCircle(Part.Circle(App.Vector(62.94, 35.055, 0), App.Vector(0, 0, 1), 0.95), math.radians(0), math.radians(180)),  # 6
    Part.ArcOfCircle(Part.Circle(App.Vector(61.04, 35.055, 0), App.Vector(0, 0, 1), 0.95), math.radians(0), math.radians(180)),  # 7
    Part.ArcOfCircle(Part.Circle(App.Vector(59.14, 35.055, 0), App.Vector(0, 0, 1), 0.95), math.radians(0), math.radians(180)),  # 8
    Part.ArcOfCircle(Part.Circle(App.Vector(57.24, 35.055, 0), App.Vector(0, 0, 1), 0.95), math.radians(0), math.radians(180)),  # 9
    Part.ArcOfCircle(Part.Circle(App.Vector(55.34, 35.055, 0), App.Vector(0, 0, 1), 0.95), math.radians(0), math.radians(180)),  # 10
    Part.ArcOfCircle(Part.Circle(App.Vector(53.44, 35.055, 0), App.Vector(0, 0, 1), 0.95), math.radians(0), math.radians(180)),  # 11
    Part.ArcOfCircle(Part.Circle(App.Vector(51.54, 35.055, 0), App.Vector(0, 0, 1), 0.95), math.radians(0), math.radians(180)),  # 12
    Part.ArcOfCircle(Part.Circle(App.Vector(49.64, 35.055, 0), App.Vector(0, 0, 1), 0.95), math.radians(0), math.radians(180)),  # 13
    Part.ArcOfCircle(Part.Circle(App.Vector(47.74, 35.055, 0), App.Vector(0, 0, 1), 0.95), math.radians(0), math.radians(180)),  # 14
    Part.ArcOfCircle(Part.Circle(App.Vector(45.84, 35.055, 0), App.Vector(0, 0, 1), 0.95), math.radians(0), math.radians(180)),  # 15
    Part.ArcOfCircle(Part.Circle(App.Vector(43.94, 35.055, 0), App.Vector(0, 0, 1), 0.95), math.radians(0), math.radians(180)),  # 16
    Part.ArcOfCircle(Part.Circle(App.Vector(42.04, 35.055, 0), App.Vector(0, 0, 1), 0.95), math.radians(0), math.radians(180)),  # 17
    Part.ArcOfCircle(Part.Circle(App.Vector(40.14, 35.055, 0), App.Vector(0, 0, 1), 0.95), math.radians(0), math.radians(180)),  # 18
    Part.ArcOfCircle(Part.Circle(App.Vector(38.24, 35.055, 0), App.Vector(0, 0, 1), 0.95), math.radians(0), math.radians(180)),  # 19
    Part.ArcOfCircle(Part.Circle(App.Vector(36.34, 35.055, 0), App.Vector(0, 0, 1), 0.95), math.radians(0), math.radians(180)),  # 20
    Part.ArcOfCircle(Part.Circle(App.Vector(34.44, 35.055, 0), App.Vector(0, 0, 1), 0.95), math.radians(0), math.radians(180)),  # 21
], False)
sketch5.addConstraint([
    Sketcher.Constraint("Coincident", 0, 2, 1, 1),
    Sketcher.Constraint("Coincident", 1, 2, 2, 1),
    Sketcher.Constraint("Tangent", 2, 2, 3, 1),
    Sketcher.Constraint("Tangent", 3, 2, 4, 1),
    Sketcher.Constraint("Tangent", 4, 2, 5, 1),
    Sketcher.Constraint("Tangent", 5, 2, 6, 1),
    Sketcher.Constraint("Tangent", 6, 2, 7, 1),
    Sketcher.Constraint("Tangent", 7, 2, 8, 1),
    Sketcher.Constraint("Tangent", 8, 2, 9, 1),
    Sketcher.Constraint("Tangent", 9, 2, 10, 1),
    Sketcher.Constraint("Tangent", 10, 2, 11, 1),
    Sketcher.Constraint("Tangent", 11, 2, 12, 1),
    Sketcher.Constraint("Tangent", 12, 2, 13, 1),
    Sketcher.Constraint("Tangent", 13, 2, 14, 1),
    Sketcher.Constraint("Tangent", 14, 2, 15, 1),
    Sketcher.Constraint("Tangent", 15, 2, 16, 1),
    Sketcher.Constraint("Tangent", 16, 2, 17, 1),
    Sketcher.Constraint("Tangent", 17, 2, 18, 1),
    Sketcher.Constraint("Tangent", 18, 2, 19, 1),
    Sketcher.Constraint("Tangent", 19, 2, 20, 1),
    Sketcher.Constraint("Tangent", 20, 2, 21, 1),
    Sketcher.Constraint("Tangent", 21, 2, 0, 1),
    Sketcher.Constraint("Vertical", 0),
    Sketcher.Constraint("Horizontal", 1),
    Sketcher.Constraint("Vertical", 2),
    Sketcher.Constraint("Equal", 4, 5),
    Sketcher.Constraint("Equal", 5, 6),
    Sketcher.Constraint("Equal", 6, 7),
    Sketcher.Constraint("Equal", 7, 8),
    Sketcher.Constraint("Equal", 8, 9),
    Sketcher.Constraint("Equal", 9, 10),
    Sketcher.Constraint("Equal", 10, 11),
    Sketcher.Constraint("Equal", 11, 12),
    Sketcher.Constraint("Equal", 12, 13),
    Sketcher.Constraint("Equal", 13, 14),
    Sketcher.Constraint("Equal", 14, 15),
    Sketcher.Constraint("Equal", 15, 16),
    Sketcher.Constraint("Equal", 16, 17),
    Sketcher.Constraint("Equal", 17, 18),
    Sketcher.Constraint("Equal", 18, 19),
    Sketcher.Constraint("Equal", 19, 20),
    Sketcher.Constraint("Equal", 20, 21),
    Sketcher.Constraint("Horizontal", 3, 3, 4, 3),
    Sketcher.Constraint("Horizontal", 4, 3, 5, 3),
    Sketcher.Constraint("Horizontal", 5, 3, 6, 3),
    Sketcher.Constraint("Horizontal", 6, 3, 7, 3),
    Sketcher.Constraint("Horizontal", 7, 3, 8, 3),
    Sketcher.Constraint("Horizontal", 8, 3, 9, 3),
    Sketcher.Constraint("Horizontal", 9, 3, 10, 3),
    Sketcher.Constraint("Horizontal", 10, 3, 11, 3),
    Sketcher.Constraint("Horizontal", 11, 3, 12, 3),
    Sketcher.Constraint("Horizontal", 12, 3, 13, 3),
    Sketcher.Constraint("Horizontal", 13, 3, 14, 3),
    Sketcher.Constraint("Horizontal", 14, 3, 15, 3),
    Sketcher.Constraint("Horizontal", 15, 3, 16, 3),
    Sketcher.Constraint("Horizontal", 16, 3, 17, 3),
    Sketcher.Constraint("Horizontal", 17, 3, 18, 3),
    Sketcher.Constraint("Horizontal", 18, 3, 19, 3),
    Sketcher.Constraint("Horizontal", 19, 3, 20, 3),
    Sketcher.Constraint("Horizontal", 20, 3, 21, 3),
    Sketcher.Constraint("Radius", 3, 0.4),
    Sketcher.Constraint("DistanceX", 1, 1, 1, 2, 35.0),
    Sketcher.Constraint("DistanceY", 0, 2, 0, 1, 5.86),
    Sketcher.Constraint("DistanceX", -1, 1, 3, 3, 68.09),
    Sketcher.Constraint("DistanceY", -1, 1, 3, 3, 35.055),
])
revolution5 = body.newObject("PartDesign::Revolution", "Revolution004")
revolution5.Profile = sketch5
revolution5.ReferenceAxis = (sketch5, ["H_Axis"])
revolution5.Angle = 360

# Sketch on XY plane
sketch6 = body.newObject("Sketcher::SketchObject", "Sketch005")
sketch6.AttachmentSupport = (doc.getObject("XY_Plane"), [""])
sketch6.MapMode = "FlatFace"
sketch6.addGeometry([
    Part.LineSegment(App.Vector(68.49, 31.315, 0), App.Vector(68.49, 29.195, 0)),  # 0
    Part.LineSegment(App.Vector(68.49, 29.195, 0), App.Vector(98.49, 29.195, 0)),  # 1
    Part.LineSegment(App.Vector(98.49, 29.195, 0), App.Vector(98.49, 31.315, 0)),  # 2
    Part.ArcOfCircle(Part.Circle(App.Vector(97.74, 31.315, 0), App.Vector(0, 0, 1), 0.75), math.radians(0), math.radians(180)),  # 3
    Part.ArcOfCircle(Part.Circle(App.Vector(96.04, 31.315, 0), App.Vector(0, 0, 1), 0.95), math.radians(0), math.radians(180)),  # 4
    Part.ArcOfCircle(Part.Circle(App.Vector(94.14, 31.315, 0), App.Vector(0, 0, 1), 0.95), math.radians(0), math.radians(180)),  # 5
    Part.ArcOfCircle(Part.Circle(App.Vector(92.24, 31.315, 0), App.Vector(0, 0, 1), 0.95), math.radians(0), math.radians(180)),  # 6
    Part.ArcOfCircle(Part.Circle(App.Vector(90.34, 31.315, 0), App.Vector(0, 0, 1), 0.95), math.radians(0), math.radians(180)),  # 7
    Part.ArcOfCircle(Part.Circle(App.Vector(88.44, 31.315, 0), App.Vector(0, 0, 1), 0.95), math.radians(0), math.radians(180)),  # 8
    Part.ArcOfCircle(Part.Circle(App.Vector(86.54, 31.315, 0), App.Vector(0, 0, 1), 0.95), math.radians(0), math.radians(180)),  # 9
    Part.ArcOfCircle(Part.Circle(App.Vector(84.64, 31.315, 0), App.Vector(0, 0, 1), 0.95), math.radians(0), math.radians(180)),  # 10
    Part.ArcOfCircle(Part.Circle(App.Vector(82.74, 31.315, 0), App.Vector(0, 0, 1), 0.95), math.radians(0), math.radians(180)),  # 11
    Part.ArcOfCircle(Part.Circle(App.Vector(80.84, 31.315, 0), App.Vector(0, 0, 1), 0.95), math.radians(0), math.radians(180)),  # 12
    Part.ArcOfCircle(Part.Circle(App.Vector(78.94, 31.315, 0), App.Vector(0, 0, 1), 0.95), math.radians(0), math.radians(180)),  # 13
    Part.ArcOfCircle(Part.Circle(App.Vector(77.04, 31.315, 0), App.Vector(0, 0, 1), 0.95), math.radians(0), math.radians(180)),  # 14
    Part.ArcOfCircle(Part.Circle(App.Vector(75.14, 31.315, 0), App.Vector(0, 0, 1), 0.95), math.radians(0), math.radians(180)),  # 15
    Part.ArcOfCircle(Part.Circle(App.Vector(73.24, 31.315, 0), App.Vector(0, 0, 1), 0.95), math.radians(0), math.radians(180)),  # 16
    Part.ArcOfCircle(Part.Circle(App.Vector(71.34, 31.315, 0), App.Vector(0, 0, 1), 0.95), math.radians(0), math.radians(180)),  # 17
    Part.ArcOfCircle(Part.Circle(App.Vector(69.44, 31.315, 0), App.Vector(0, 0, 1), 0.95), math.radians(0), math.radians(180)),  # 18
], False)
sketch6.addConstraint([
    Sketcher.Constraint("Coincident", 0, 2, 1, 1),
    Sketcher.Constraint("Coincident", 1, 2, 2, 1),
    Sketcher.Constraint("Tangent", 2, 2, 3, 1),
    Sketcher.Constraint("Tangent", 3, 2, 4, 1),
    Sketcher.Constraint("Tangent", 4, 2, 5, 1),
    Sketcher.Constraint("Tangent", 5, 2, 6, 1),
    Sketcher.Constraint("Tangent", 6, 2, 7, 1),
    Sketcher.Constraint("Tangent", 7, 2, 8, 1),
    Sketcher.Constraint("Tangent", 8, 2, 9, 1),
    Sketcher.Constraint("Tangent", 9, 2, 10, 1),
    Sketcher.Constraint("Tangent", 10, 2, 11, 1),
    Sketcher.Constraint("Tangent", 11, 2, 12, 1),
    Sketcher.Constraint("Tangent", 12, 2, 13, 1),
    Sketcher.Constraint("Tangent", 13, 2, 14, 1),
    Sketcher.Constraint("Tangent", 14, 2, 15, 1),
    Sketcher.Constraint("Tangent", 15, 2, 16, 1),
    Sketcher.Constraint("Tangent", 16, 2, 17, 1),
    Sketcher.Constraint("Tangent", 17, 2, 18, 1),
    Sketcher.Constraint("Tangent", 18, 2, 0, 1),
    Sketcher.Constraint("Vertical", 0),
    Sketcher.Constraint("Horizontal", 1),
    Sketcher.Constraint("Vertical", 2),
    Sketcher.Constraint("Equal", 4, 5),
    Sketcher.Constraint("Equal", 5, 6),
    Sketcher.Constraint("Equal", 6, 7),
    Sketcher.Constraint("Equal", 7, 8),
    Sketcher.Constraint("Equal", 8, 9),
    Sketcher.Constraint("Equal", 9, 10),
    Sketcher.Constraint("Equal", 10, 11),
    Sketcher.Constraint("Equal", 11, 12),
    Sketcher.Constraint("Equal", 12, 13),
    Sketcher.Constraint("Equal", 13, 14),
    Sketcher.Constraint("Equal", 14, 15),
    Sketcher.Constraint("Equal", 15, 16),
    Sketcher.Constraint("Equal", 16, 17),
    Sketcher.Constraint("Equal", 17, 18),
    Sketcher.Constraint("Horizontal", 3, 3, 4, 3),
    Sketcher.Constraint("Horizontal", 4, 3, 5, 3),
    Sketcher.Constraint("Horizontal", 5, 3, 6, 3),
    Sketcher.Constraint("Horizontal", 6, 3, 7, 3),
    Sketcher.Constraint("Horizontal", 7, 3, 8, 3),
    Sketcher.Constraint("Horizontal", 8, 3, 9, 3),
    Sketcher.Constraint("Horizontal", 9, 3, 10, 3),
    Sketcher.Constraint("Horizontal", 10, 3, 11, 3),
    Sketcher.Constraint("Horizontal", 11, 3, 12, 3),
    Sketcher.Constraint("Horizontal", 12, 3, 13, 3),
    Sketcher.Constraint("Horizontal", 13, 3, 14, 3),
    Sketcher.Constraint("Horizontal", 14, 3, 15, 3),
    Sketcher.Constraint("Horizontal", 15, 3, 16, 3),
    Sketcher.Constraint("Horizontal", 16, 3, 17, 3),
    Sketcher.Constraint("Horizontal", 17, 3, 18, 3),
    Sketcher.Constraint("DistanceX", 1, 1, 1, 2, 30.0),
    Sketcher.Constraint("Radius", 3, 0.75),
    Sketcher.Constraint("DistanceY", 0, 2, 0, 1, 2.12),
    Sketcher.Constraint("DistanceX", -1, 1, 3, 3, 97.74),
    Sketcher.Constraint("DistanceY", -1, 1, 3, 3, 31.315),
])
revolution6 = body.newObject("PartDesign::Revolution", "Revolution005")
revolution6.Profile = sketch6
revolution6.ReferenceAxis = (sketch6, ["H_Axis"])
revolution6.Angle = 360

doc.recompute()
